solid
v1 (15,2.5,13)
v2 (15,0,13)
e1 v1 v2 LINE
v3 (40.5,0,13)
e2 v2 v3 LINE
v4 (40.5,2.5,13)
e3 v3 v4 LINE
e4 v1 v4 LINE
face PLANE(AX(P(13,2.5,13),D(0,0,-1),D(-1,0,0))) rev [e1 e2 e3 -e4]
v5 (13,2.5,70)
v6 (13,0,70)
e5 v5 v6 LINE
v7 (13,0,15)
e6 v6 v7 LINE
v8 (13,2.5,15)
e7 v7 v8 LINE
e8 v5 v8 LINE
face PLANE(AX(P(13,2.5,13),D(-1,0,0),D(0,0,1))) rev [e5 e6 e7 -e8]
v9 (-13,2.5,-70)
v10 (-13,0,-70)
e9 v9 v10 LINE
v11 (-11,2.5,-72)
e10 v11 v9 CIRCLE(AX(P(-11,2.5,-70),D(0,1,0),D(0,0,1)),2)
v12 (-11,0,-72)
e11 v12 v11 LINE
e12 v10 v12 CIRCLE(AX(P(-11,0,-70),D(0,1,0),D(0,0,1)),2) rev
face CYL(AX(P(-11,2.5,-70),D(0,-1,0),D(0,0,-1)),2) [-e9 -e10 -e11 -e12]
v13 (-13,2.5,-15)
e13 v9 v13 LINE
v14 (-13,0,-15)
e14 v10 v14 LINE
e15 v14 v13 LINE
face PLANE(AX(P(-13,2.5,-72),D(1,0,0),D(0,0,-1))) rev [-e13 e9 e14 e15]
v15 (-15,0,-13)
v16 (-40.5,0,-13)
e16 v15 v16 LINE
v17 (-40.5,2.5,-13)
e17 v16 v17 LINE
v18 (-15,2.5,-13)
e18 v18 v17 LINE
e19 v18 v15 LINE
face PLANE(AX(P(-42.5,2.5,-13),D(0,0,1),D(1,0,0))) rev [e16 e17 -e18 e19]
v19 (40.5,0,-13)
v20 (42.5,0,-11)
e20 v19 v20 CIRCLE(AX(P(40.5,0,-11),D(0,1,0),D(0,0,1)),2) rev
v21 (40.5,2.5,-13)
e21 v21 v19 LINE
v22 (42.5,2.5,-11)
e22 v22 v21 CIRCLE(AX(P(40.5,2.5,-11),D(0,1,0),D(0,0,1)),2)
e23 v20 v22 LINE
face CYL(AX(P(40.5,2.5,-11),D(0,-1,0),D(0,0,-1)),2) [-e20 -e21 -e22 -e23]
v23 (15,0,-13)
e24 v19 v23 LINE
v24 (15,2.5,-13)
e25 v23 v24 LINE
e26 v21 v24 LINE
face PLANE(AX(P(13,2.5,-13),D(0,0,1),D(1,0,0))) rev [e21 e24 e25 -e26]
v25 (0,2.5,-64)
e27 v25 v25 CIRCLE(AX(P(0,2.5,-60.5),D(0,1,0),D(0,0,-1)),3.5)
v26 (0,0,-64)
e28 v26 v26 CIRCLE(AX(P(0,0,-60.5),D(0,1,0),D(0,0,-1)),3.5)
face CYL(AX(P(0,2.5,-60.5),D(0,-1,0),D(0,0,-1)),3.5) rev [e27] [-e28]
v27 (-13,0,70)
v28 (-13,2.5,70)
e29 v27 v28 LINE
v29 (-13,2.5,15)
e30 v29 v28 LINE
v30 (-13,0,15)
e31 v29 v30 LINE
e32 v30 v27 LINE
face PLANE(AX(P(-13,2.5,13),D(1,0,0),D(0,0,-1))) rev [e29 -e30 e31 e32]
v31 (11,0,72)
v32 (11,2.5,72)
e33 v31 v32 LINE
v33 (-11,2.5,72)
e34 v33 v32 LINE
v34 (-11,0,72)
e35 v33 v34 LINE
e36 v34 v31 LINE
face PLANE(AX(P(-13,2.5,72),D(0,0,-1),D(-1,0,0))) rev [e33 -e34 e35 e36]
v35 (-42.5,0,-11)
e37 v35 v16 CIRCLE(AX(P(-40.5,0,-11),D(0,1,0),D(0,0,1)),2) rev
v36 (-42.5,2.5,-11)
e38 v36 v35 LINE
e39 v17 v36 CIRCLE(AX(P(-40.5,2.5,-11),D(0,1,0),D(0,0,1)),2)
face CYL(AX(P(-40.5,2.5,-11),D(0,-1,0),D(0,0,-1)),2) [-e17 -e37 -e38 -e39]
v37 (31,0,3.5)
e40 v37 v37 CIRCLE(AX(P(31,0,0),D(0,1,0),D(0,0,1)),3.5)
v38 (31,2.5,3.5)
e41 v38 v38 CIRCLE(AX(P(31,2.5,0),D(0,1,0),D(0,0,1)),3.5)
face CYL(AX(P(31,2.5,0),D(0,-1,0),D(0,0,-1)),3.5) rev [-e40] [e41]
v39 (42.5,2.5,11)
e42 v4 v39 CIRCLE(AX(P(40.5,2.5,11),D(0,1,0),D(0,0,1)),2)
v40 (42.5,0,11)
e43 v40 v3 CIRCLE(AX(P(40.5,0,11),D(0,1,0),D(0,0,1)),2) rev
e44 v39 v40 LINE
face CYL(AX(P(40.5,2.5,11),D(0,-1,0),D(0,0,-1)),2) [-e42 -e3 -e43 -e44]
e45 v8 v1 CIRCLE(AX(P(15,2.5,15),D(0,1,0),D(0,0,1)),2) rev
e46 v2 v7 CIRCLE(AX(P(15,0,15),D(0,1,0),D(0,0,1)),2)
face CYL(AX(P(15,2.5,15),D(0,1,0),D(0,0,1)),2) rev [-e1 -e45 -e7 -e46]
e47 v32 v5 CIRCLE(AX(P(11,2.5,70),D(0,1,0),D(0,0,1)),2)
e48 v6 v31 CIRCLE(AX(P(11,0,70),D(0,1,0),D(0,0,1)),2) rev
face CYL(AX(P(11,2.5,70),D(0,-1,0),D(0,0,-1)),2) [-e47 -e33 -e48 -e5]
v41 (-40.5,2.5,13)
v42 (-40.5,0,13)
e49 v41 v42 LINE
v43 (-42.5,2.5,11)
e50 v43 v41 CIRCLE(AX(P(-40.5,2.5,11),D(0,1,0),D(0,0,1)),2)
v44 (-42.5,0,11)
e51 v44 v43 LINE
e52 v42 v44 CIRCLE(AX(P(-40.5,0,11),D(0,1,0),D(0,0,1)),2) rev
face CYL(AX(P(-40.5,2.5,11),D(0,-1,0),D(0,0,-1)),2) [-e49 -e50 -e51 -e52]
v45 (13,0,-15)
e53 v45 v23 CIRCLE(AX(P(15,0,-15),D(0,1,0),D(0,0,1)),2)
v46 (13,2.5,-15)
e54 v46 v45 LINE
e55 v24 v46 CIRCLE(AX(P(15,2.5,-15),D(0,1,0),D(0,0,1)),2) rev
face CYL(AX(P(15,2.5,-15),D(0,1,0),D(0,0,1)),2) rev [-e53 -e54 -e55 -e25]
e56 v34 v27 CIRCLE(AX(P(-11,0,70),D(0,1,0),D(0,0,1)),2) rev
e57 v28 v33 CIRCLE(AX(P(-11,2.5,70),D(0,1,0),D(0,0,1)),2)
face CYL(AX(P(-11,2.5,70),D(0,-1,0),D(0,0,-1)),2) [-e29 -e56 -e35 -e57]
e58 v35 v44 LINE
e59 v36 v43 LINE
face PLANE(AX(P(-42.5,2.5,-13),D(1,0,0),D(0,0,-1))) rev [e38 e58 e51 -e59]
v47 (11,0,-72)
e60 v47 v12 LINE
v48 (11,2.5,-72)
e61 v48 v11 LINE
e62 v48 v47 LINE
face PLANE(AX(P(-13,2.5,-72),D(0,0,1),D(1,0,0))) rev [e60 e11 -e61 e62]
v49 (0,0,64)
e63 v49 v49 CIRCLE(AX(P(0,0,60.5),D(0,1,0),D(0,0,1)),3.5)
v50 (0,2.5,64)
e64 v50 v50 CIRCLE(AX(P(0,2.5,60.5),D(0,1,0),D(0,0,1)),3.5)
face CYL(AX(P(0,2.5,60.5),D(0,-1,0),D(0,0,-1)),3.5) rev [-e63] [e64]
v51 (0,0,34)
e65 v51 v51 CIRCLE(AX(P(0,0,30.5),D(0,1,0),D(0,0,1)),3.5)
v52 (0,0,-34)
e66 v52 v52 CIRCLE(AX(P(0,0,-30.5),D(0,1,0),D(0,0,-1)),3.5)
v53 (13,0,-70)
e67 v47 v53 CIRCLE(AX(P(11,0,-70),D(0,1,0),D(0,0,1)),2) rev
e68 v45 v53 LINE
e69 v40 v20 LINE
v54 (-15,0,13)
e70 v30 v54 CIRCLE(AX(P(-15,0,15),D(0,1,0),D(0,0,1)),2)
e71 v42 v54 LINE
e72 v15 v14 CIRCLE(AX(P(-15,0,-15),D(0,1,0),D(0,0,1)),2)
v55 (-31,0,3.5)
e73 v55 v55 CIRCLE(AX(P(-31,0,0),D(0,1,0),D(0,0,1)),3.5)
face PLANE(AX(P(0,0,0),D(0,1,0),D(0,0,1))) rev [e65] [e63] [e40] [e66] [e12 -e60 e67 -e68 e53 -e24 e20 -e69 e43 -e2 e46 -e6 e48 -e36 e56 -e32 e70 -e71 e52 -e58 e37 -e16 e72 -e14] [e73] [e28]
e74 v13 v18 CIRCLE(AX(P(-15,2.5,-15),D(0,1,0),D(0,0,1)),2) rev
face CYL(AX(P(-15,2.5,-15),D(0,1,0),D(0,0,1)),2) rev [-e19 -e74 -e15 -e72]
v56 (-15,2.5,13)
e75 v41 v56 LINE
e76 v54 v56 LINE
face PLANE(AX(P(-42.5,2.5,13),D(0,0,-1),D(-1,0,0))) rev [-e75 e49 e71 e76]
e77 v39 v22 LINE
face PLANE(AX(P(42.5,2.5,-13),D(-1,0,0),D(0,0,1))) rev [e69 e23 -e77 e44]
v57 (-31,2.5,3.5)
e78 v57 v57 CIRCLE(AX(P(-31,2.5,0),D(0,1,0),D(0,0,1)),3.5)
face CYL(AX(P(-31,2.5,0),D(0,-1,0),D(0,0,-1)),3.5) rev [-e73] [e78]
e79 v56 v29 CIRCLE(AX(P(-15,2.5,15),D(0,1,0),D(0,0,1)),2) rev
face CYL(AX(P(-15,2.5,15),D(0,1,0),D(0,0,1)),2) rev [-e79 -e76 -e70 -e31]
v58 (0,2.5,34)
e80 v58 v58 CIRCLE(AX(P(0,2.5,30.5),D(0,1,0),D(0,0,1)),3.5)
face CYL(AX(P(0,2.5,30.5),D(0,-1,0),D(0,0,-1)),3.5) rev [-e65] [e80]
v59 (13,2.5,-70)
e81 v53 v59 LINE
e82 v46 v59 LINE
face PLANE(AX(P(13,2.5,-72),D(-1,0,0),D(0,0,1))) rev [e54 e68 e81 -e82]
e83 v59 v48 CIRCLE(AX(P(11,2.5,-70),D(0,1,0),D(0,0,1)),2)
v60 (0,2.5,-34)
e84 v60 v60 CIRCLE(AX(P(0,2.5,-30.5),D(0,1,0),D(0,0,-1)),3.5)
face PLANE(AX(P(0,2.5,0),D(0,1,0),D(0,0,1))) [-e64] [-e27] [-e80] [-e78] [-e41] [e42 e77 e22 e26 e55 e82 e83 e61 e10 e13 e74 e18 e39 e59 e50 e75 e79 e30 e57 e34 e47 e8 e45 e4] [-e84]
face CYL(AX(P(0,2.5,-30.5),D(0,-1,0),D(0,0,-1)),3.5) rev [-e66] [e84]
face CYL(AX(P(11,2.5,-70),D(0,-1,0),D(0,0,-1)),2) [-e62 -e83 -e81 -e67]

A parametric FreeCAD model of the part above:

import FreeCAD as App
import Part
import Sketcher

V = App.Vector
Q = App.Units.Quantity


def edges_at(feature, points):
    """Names of the edges that pass closest to the given points."""
    edges = feature.Shape.Edges
    near = lambda p: min(range(len(edges)), key=lambda i: edges[i].distToShape(Part.Vertex(*p))[0])
    return sorted({f"Edge{near(p) + 1}" for p in points})


def add_polygon(sketch, points):
    """Adds a closed chain of lines whose ends are joined by coincident constraints."""
    first, n = sketch.GeometryCount, len(points)
    for a, b in zip(points, points[1:] + points[:1]):
        sketch.addGeometry(Part.LineSegment(App.Vector(*a, 0), App.Vector(*b, 0)), False)
    for i in range(n):
        sketch.addConstraint(Sketcher.Constraint("Coincident", first + i, 2, first + (i + 1) % n, 1))

doc = App.newDocument("Part")
params = doc.addObject("Spreadsheet::Sheet", "Params")
for row, (alias, value) in enumerate([
    ("sketch1_diameter", "7 mm"),
    ("sketch1_width", "26 mm"),
    ("sketch1_height", "59 mm"),
    ("sketch1_width2", "29.5 mm"),
    ("pad1_length", "2.5 mm"),
    ("fillet_radius", "2 mm"),
], start=1):
    params.set(f"A{row}", alias)
    params.set(f"B{row}", "=" + value)
    params.setAlias(f"B{row}", alias)

body = doc.addObject("PartDesign::Body", "Body")

# Sketch on XZ plane
sketch1 = body.newObject("Sketcher::SketchObject", "Sketch")
sketch1.AttachmentSupport = (doc.getObject("XZ_Plane"), [""])
sketch1.MapMode = "FlatFace"
add_polygon(sketch1, [(13, -72), (-13, -72), (-13, -13), (-42.5, -13), (-42.5, 13), (-13, 13), (-13, 72), (13, 72), (13, 13), (42.5, 13), (42.5, -13), (13, -13)])  # lines 0-11
sketch1.addGeometry(Part.Circle(V(0, 60.5, 0), V(0, 0, 1), 3.5), False)  # 12
sketch1.addGeometry(Part.Circle(V(0, 30.5, 0), V(0, 0, 1), 3.5), False)  # 13
sketch1.addGeometry(Part.Circle(V(31, 0, 0), V(0, 0, 1), 3.5), False)  # 14
sketch1.addGeometry(Part.Circle(V(0, -30.5, 0), V(0, 0, 1), 3.5), False)  # 15
sketch1.addGeometry(Part.Circle(V(-31, 0, 0), V(0, 0, 1), 3.5), False)  # 16
sketch1.addGeometry(Part.Circle(V(0, -60.5, 0), V(0, 0, 1), 3.5), False)  # 17
sketch1.addConstraint([
    Sketcher.Constraint("Horizontal", 0),
    Sketcher.Constraint("Vertical", 1),
    Sketcher.Constraint("Horizontal", 2),
    Sketcher.Constraint("Vertical", 3),
    Sketcher.Constraint("Horizontal", 4),
    Sketcher.Constraint("Vertical", 5),
    Sketcher.Constraint("Horizontal", 6),
    Sketcher.Constraint("Vertical", 7),
    Sketcher.Constraint("Horizontal", 8),
    Sketcher.Constraint("Vertical", 9),
    Sketcher.Constraint("Horizontal", 10),
    Sketcher.Constraint("Vertical", 11),
    Sketcher.Constraint("Equal", 12, 13),
    Sketcher.Constraint("Equal", 13, 14),
    Sketcher.Constraint("Equal", 14, 15),
    Sketcher.Constraint("Equal", 15, 16),
    Sketcher.Constraint("Equal", 16, 17),
    Sketcher.Constraint("Symmetric", 13, 3, 15, 3, -1, 1),
    Sketcher.Constraint("Symmetric", 14, 3, 16, 3, -1, 1),
    Sketcher.Constraint("Symmetric", 12, 3, 17, 3, -1, 1),
    Sketcher.Constraint("Symmetric", 0, 2, 6, 2, -1, 1),
    Sketcher.Constraint("Symmetric", 2, 2, 8, 2, -1, 1),
    Sketcher.Constraint("Symmetric", 4, 2, 10, 2, -1, 1),
    Sketcher.Constraint("Symmetric", 4, 2, 7, 2, -2),
    Sketcher.Constraint("PointOnObject", 12, 3, -2),
    Sketcher.Constraint("PointOnObject", 13, 3, -2),
    Sketcher.Constraint("PointOnObject", 14, 3, -1),
    Sketcher.Constraint("Equal", 6, 3),
    Sketcher.Constraint("Diameter", 12, Q("7 mm")),
    Sketcher.Constraint("DistanceX", 0, 2, 0, 1, Q("26 mm")),
    Sketcher.Constraint("DistanceY", 1, 1, 1, 2, Q("59 mm")),
    Sketcher.Constraint("DistanceX", 2, 2, 2, 1, Q("29.5 mm")),
    Sketcher.Constraint("DistanceX", -1, 1, 14, 3, Q("31 mm")),
    Sketcher.Constraint("DistanceY", 13, 3, 12, 3, Q("30 mm")),
    Sketcher.Constraint("DistanceY", 15, 3, 13, 3, Q("61 mm")),
])
sketch1.setExpression("Constraints[40]", "Params.sketch1_diameter")
sketch1.setExpression("Constraints[41]", "Params.sketch1_width")
sketch1.setExpression("Constraints[42]", "Params.sketch1_height")
sketch1.setExpression("Constraints[43]", "Params.sketch1_width2")
pad1 = body.newObject("PartDesign::Pad", "Pad")
pad1.Profile = sketch1
pad1.setExpression("Length", "Params.pad1_length")
pad1.Reversed = True
doc.recompute()

fillet = body.newObject("PartDesign::Fillet", "Fillet")
fillet.Base = (pad1, edges_at(pad1, [
    (13, 1.25, 72),
    (-13, 1.25, 72),
    (-13, 1.25, 13),
    (-42.5, 1.25, 13),
    (-42.5, 1.25, -13),
    (-13, 1.25, -13),
    (-13, 1.25, -72),
    (13, 1.25, -72),
    (13, 1.25, -13),
    (42.5, 1.25, -13),
    (42.5, 1.25, 13),
    (13, 1.25, 13),
]))
fillet.setExpression("Radius", "Params.fillet_radius")

doc.recompute()
